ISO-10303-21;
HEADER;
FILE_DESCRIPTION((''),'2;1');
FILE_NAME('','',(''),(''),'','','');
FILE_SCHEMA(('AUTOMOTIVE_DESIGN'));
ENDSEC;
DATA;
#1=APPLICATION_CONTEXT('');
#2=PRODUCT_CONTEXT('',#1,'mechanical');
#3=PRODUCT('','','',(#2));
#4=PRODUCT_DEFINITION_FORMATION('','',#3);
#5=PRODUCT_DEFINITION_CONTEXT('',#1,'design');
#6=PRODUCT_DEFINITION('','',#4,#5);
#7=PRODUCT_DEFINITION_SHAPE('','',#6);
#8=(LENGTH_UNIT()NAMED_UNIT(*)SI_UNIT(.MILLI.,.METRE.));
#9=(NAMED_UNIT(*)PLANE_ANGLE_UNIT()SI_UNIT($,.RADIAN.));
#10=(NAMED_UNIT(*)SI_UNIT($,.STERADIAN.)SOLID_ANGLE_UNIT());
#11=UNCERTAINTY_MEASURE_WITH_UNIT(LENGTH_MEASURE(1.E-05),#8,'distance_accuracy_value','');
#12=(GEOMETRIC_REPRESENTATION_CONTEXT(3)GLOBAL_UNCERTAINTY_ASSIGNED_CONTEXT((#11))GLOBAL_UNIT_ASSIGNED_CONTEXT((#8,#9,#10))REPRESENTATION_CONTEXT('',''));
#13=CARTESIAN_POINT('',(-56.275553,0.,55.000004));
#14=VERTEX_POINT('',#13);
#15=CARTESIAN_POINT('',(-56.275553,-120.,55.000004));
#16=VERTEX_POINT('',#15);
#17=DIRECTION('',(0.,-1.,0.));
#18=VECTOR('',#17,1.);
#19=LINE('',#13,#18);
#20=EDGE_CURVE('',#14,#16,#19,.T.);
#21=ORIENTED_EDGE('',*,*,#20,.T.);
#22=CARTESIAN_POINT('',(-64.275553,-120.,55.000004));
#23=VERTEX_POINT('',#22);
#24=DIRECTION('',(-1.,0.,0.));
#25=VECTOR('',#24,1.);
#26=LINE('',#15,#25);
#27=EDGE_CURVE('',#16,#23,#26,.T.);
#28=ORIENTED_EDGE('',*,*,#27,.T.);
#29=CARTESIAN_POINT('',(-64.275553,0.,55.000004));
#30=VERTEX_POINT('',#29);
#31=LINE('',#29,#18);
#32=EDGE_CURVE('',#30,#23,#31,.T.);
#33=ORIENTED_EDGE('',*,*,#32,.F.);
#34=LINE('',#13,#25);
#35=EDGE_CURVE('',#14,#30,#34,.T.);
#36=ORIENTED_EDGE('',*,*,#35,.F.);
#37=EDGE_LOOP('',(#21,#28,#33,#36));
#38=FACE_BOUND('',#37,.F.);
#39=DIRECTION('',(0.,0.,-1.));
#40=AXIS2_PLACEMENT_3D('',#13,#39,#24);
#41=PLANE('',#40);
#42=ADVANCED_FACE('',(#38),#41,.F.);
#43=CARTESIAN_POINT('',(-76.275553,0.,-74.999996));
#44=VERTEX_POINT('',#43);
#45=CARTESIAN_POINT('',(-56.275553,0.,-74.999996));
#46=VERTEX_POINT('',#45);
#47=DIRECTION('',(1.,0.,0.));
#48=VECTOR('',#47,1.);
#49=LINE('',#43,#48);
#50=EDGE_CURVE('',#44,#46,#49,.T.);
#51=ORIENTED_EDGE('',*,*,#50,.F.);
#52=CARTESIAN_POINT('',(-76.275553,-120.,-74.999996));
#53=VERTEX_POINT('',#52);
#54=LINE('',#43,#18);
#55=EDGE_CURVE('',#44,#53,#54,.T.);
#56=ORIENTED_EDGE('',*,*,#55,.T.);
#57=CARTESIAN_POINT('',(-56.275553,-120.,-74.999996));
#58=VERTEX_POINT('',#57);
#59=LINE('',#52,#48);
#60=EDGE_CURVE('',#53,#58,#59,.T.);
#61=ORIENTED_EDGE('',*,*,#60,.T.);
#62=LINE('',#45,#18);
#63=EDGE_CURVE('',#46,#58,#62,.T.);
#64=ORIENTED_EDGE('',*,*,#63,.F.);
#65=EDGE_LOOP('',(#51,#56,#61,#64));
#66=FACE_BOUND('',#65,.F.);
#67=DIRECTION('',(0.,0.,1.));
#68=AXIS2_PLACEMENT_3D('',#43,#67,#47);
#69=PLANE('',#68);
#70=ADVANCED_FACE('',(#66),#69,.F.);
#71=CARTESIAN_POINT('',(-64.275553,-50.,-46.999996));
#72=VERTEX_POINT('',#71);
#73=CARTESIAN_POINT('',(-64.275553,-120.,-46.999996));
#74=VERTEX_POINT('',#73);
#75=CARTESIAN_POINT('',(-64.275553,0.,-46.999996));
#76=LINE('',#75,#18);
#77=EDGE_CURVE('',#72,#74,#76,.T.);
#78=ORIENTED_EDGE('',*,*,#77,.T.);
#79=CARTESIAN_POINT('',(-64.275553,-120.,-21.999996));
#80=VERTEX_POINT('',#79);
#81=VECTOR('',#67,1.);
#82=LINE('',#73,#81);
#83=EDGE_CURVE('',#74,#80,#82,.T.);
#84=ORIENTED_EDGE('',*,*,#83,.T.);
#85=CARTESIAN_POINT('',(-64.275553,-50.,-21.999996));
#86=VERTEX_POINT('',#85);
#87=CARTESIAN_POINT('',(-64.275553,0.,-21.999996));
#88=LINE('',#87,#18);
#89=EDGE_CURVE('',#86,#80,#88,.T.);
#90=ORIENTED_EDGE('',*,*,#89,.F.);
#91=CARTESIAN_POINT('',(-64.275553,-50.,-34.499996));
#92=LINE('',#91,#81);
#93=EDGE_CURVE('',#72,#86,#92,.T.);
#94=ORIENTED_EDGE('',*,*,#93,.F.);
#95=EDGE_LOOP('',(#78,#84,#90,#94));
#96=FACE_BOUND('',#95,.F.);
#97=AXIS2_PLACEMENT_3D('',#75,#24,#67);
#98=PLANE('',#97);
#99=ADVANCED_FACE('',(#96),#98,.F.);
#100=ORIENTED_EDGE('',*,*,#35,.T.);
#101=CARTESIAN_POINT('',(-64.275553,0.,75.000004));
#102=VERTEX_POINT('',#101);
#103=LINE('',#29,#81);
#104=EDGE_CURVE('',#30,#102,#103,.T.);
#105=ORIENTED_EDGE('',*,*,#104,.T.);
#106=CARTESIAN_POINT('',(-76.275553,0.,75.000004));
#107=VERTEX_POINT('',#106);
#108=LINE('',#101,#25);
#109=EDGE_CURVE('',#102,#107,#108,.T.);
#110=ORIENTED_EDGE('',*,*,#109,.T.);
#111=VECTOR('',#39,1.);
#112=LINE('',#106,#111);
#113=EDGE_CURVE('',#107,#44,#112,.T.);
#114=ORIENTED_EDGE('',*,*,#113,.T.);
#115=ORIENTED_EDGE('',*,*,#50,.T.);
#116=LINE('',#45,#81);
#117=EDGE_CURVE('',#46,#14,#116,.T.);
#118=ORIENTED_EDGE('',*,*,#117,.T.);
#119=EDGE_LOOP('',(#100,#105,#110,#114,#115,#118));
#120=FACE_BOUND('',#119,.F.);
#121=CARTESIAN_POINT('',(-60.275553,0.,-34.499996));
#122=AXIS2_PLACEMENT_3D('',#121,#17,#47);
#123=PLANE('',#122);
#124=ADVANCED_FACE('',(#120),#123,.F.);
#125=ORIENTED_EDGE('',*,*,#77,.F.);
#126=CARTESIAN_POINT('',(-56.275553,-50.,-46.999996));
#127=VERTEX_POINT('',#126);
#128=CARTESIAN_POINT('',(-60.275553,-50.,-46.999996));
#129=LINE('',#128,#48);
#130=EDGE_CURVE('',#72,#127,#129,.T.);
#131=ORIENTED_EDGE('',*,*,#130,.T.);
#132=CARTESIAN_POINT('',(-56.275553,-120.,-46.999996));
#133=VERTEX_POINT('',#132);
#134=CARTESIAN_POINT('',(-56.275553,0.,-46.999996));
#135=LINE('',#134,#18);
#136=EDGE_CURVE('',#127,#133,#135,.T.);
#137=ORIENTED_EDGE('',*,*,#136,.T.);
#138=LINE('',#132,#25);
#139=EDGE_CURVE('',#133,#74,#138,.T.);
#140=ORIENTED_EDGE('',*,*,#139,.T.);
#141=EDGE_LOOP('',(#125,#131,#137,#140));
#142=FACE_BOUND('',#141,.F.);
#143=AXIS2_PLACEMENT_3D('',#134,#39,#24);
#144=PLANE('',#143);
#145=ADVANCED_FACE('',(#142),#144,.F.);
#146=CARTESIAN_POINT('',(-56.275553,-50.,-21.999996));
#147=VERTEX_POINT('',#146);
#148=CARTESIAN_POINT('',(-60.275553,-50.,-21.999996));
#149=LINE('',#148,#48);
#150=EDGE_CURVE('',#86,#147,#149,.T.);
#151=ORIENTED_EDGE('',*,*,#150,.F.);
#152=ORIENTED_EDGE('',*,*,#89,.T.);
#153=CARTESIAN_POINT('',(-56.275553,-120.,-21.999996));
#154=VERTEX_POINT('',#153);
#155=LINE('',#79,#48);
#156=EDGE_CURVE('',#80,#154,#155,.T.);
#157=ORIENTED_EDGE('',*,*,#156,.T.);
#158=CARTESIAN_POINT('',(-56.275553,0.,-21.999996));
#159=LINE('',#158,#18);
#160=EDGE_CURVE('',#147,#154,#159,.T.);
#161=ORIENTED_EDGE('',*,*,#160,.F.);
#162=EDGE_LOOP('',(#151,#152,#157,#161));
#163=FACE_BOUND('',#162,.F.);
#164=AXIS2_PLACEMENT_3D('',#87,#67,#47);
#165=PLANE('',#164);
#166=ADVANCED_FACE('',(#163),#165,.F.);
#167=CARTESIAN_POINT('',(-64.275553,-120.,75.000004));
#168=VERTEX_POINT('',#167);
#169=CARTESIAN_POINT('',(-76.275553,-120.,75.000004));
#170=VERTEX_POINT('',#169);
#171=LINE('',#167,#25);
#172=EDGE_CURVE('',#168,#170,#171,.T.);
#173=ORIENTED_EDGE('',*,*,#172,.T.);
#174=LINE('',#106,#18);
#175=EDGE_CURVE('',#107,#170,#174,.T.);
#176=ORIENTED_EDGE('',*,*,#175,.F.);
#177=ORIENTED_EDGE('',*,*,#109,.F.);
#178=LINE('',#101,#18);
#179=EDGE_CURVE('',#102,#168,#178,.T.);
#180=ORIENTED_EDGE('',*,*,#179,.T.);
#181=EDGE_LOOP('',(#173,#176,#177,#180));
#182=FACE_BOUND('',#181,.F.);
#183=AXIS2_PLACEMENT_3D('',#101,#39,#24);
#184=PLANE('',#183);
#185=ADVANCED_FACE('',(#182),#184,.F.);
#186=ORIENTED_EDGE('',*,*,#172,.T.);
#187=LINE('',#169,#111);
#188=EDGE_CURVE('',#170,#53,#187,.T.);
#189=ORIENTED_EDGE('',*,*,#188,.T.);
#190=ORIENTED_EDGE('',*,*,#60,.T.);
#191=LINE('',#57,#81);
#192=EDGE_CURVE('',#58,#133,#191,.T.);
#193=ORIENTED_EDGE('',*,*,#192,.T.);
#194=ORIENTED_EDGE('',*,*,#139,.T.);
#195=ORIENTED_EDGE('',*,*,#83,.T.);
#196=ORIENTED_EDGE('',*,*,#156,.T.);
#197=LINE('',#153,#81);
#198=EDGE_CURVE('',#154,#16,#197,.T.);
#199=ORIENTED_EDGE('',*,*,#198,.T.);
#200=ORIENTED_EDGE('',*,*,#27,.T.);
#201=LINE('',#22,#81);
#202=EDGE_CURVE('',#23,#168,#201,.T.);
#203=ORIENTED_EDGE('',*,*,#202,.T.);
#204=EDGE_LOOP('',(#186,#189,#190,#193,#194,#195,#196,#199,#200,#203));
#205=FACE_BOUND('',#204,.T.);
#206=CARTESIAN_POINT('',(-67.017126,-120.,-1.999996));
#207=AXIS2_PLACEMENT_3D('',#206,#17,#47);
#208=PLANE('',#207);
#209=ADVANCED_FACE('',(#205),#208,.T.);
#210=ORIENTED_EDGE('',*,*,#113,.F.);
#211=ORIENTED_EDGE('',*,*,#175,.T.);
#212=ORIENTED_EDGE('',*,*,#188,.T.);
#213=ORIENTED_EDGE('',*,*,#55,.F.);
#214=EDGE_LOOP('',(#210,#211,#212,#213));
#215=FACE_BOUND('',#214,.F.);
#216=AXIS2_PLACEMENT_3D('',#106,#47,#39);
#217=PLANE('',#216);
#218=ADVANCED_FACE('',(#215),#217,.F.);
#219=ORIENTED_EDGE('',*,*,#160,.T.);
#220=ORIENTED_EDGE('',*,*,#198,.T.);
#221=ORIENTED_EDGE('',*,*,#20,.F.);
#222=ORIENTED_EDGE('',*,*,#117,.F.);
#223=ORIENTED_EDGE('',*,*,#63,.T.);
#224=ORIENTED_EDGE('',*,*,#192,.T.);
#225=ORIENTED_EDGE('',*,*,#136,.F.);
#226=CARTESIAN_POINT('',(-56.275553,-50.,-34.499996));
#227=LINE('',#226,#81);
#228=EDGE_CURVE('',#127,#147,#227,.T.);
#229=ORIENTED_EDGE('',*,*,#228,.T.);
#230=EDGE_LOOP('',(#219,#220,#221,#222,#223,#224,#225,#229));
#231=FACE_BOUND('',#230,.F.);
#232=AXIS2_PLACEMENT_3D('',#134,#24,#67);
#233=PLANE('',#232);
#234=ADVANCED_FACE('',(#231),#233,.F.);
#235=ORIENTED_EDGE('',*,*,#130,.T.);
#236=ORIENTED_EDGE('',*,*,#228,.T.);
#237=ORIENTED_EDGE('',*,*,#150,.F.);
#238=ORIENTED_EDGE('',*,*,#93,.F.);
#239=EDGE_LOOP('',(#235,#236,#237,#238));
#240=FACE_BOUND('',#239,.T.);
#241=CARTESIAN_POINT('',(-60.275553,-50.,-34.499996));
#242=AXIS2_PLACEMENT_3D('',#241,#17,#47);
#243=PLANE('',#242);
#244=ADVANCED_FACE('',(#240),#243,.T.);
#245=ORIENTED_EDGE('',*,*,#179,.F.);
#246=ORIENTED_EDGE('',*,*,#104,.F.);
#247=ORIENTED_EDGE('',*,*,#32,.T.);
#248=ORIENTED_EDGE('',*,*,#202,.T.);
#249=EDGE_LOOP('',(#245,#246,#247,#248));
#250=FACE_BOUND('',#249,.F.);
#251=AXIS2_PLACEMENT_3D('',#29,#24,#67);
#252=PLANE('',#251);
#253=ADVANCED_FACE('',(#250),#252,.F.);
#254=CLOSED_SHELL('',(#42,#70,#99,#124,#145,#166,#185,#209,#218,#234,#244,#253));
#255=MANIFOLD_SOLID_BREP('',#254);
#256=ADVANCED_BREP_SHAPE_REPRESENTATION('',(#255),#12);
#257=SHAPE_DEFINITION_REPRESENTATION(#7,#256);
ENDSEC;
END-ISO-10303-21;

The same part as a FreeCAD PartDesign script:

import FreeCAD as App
import Part
import Sketcher
from FreeCAD import Vector
Q = App.Units.Quantity


def add_polygon(sketch, points):
    """Adds a closed chain of lines whose ends are joined by coincident constraints."""
    first, n = sketch.GeometryCount, len(points)
    for a, b in zip(points, points[1:] + points[:1]):
        sketch.addGeometry(Part.LineSegment(App.Vector(*a, 0), App.Vector(*b, 0)), False)
    for i in range(n):
        sketch.addConstraint(Sketcher.Constraint("Coincident", first + i, 2, first + (i + 1) % n, 1))

doc = App.newDocument("Part")
body = doc.addObject("PartDesign::Body", "Body")

# Sketch on XZ plane
sketch1 = body.newObject("Sketcher::SketchObject", "Sketch")
sketch1.AttachmentSupport = (doc.getObject("XZ_Plane"), [""])
sketch1.MapMode = "FlatFace"
add_polygon(sketch1, [(-64, 75), (-76, 75), (-76, -75), (-56, -75), (-56, -47), (-64, -47), (-64, -22), (-56, -22), (-56, 55), (-64, 55)])  # lines 0-9
sketch1.addConstraint(Sketcher.Constraint("Horizontal", 0))
sketch1.addConstraint(Sketcher.Constraint("Vertical", 1))
sketch1.addConstraint(Sketcher.Constraint("Horizontal", 2))
sketch1.addConstraint(Sketcher.Constraint("Vertical", 3))
sketch1.addConstraint(Sketcher.Constraint("Horizontal", 4))
sketch1.addConstraint(Sketcher.Constraint("Vertical", 5))
sketch1.addConstraint(Sketcher.Constraint("Horizontal", 6))
sketch1.addConstraint(Sketcher.Constraint("Vertical", 7))
sketch1.addConstraint(Sketcher.Constraint("Horizontal", 8))
sketch1.addConstraint(Sketcher.Constraint("Vertical", 9))
sketch1.addConstraint(Sketcher.Constraint("Vertical", 3, 2, 6, 2))
sketch1.addConstraint(Sketcher.Constraint("Vertical", 5, 2, 8, 2))
sketch1.addConstraint(Sketcher.Constraint("Equal", 2, 9))
sketch1.addConstraint(Sketcher.Constraint("DistanceX", 0, 2, 0, 1, Q("12 mm")))
sketch1.addConstraint(Sketcher.Constraint("DistanceX", 2, 1, 2, 2, Q("20 mm")))
sketch1.addConstraint(Sketcher.Constraint("DistanceY", 1, 2, 1, 1, Q("150 mm")))
sketch1.addConstraint(Sketcher.Constraint("DistanceY", 3, 1, 3, 2, Q("28 mm")))
sketch1.addConstraint(Sketcher.Constraint("DistanceY", 5, 1, 5, 2, Q("25 mm")))
sketch1.addConstraint(Sketcher.Constraint("DistanceX", 0, 2, -1, 1, Q("76.275553 mm")))
sketch1.addConstraint(Sketcher.Constraint("DistanceY", -1, 1, 0, 2, Q("75.000004 mm")))
pad1 = body.newObject("PartDesign::Pad", "Pad")
pad1.Profile = sketch1
pad1.Length = 120

# Sketch on XZ plane
sketch2 = body.newObject("Sketcher::SketchObject", "Sketch001")
sketch2.AttachmentSupport = (doc.getObject("XZ_Plane"), [""])
sketch2.MapMode = "FlatFace"
add_polygon(sketch2, [(-64, -22), (-64, -47), (-56, -47), (-56, -22)])  # lines 0-3
sketch2.addConstraint(Sketcher.Constraint("Vertical", 0))
sketch2.addConstraint(Sketcher.Constraint("Horizontal", 1))
sketch2.addConstraint(Sketcher.Constraint("Vertical", 2))
sketch2.addConstraint(Sketcher.Constraint("Horizontal", 3))
sketch2.addConstraint(Sketcher.Constraint("DistanceX", 1, 1, 1, 2, Q("8 mm")))
sketch2.addConstraint(Sketcher.Constraint("DistanceY", 0, 2, 0, 1, Q("25 mm")))
sketch2.addConstraint(Sketcher.Constraint("DistanceX", 0, 2, -1, 1, Q("64.275553 mm")))
sketch2.addConstraint(Sketcher.Constraint("DistanceY", 0, 2, -1, 1, Q("46.999996 mm")))
pad2 = body.newObject("PartDesign::Pad", "Pad001")
pad2.Profile = sketch2
pad2.Length = 50

doc.recompute()
